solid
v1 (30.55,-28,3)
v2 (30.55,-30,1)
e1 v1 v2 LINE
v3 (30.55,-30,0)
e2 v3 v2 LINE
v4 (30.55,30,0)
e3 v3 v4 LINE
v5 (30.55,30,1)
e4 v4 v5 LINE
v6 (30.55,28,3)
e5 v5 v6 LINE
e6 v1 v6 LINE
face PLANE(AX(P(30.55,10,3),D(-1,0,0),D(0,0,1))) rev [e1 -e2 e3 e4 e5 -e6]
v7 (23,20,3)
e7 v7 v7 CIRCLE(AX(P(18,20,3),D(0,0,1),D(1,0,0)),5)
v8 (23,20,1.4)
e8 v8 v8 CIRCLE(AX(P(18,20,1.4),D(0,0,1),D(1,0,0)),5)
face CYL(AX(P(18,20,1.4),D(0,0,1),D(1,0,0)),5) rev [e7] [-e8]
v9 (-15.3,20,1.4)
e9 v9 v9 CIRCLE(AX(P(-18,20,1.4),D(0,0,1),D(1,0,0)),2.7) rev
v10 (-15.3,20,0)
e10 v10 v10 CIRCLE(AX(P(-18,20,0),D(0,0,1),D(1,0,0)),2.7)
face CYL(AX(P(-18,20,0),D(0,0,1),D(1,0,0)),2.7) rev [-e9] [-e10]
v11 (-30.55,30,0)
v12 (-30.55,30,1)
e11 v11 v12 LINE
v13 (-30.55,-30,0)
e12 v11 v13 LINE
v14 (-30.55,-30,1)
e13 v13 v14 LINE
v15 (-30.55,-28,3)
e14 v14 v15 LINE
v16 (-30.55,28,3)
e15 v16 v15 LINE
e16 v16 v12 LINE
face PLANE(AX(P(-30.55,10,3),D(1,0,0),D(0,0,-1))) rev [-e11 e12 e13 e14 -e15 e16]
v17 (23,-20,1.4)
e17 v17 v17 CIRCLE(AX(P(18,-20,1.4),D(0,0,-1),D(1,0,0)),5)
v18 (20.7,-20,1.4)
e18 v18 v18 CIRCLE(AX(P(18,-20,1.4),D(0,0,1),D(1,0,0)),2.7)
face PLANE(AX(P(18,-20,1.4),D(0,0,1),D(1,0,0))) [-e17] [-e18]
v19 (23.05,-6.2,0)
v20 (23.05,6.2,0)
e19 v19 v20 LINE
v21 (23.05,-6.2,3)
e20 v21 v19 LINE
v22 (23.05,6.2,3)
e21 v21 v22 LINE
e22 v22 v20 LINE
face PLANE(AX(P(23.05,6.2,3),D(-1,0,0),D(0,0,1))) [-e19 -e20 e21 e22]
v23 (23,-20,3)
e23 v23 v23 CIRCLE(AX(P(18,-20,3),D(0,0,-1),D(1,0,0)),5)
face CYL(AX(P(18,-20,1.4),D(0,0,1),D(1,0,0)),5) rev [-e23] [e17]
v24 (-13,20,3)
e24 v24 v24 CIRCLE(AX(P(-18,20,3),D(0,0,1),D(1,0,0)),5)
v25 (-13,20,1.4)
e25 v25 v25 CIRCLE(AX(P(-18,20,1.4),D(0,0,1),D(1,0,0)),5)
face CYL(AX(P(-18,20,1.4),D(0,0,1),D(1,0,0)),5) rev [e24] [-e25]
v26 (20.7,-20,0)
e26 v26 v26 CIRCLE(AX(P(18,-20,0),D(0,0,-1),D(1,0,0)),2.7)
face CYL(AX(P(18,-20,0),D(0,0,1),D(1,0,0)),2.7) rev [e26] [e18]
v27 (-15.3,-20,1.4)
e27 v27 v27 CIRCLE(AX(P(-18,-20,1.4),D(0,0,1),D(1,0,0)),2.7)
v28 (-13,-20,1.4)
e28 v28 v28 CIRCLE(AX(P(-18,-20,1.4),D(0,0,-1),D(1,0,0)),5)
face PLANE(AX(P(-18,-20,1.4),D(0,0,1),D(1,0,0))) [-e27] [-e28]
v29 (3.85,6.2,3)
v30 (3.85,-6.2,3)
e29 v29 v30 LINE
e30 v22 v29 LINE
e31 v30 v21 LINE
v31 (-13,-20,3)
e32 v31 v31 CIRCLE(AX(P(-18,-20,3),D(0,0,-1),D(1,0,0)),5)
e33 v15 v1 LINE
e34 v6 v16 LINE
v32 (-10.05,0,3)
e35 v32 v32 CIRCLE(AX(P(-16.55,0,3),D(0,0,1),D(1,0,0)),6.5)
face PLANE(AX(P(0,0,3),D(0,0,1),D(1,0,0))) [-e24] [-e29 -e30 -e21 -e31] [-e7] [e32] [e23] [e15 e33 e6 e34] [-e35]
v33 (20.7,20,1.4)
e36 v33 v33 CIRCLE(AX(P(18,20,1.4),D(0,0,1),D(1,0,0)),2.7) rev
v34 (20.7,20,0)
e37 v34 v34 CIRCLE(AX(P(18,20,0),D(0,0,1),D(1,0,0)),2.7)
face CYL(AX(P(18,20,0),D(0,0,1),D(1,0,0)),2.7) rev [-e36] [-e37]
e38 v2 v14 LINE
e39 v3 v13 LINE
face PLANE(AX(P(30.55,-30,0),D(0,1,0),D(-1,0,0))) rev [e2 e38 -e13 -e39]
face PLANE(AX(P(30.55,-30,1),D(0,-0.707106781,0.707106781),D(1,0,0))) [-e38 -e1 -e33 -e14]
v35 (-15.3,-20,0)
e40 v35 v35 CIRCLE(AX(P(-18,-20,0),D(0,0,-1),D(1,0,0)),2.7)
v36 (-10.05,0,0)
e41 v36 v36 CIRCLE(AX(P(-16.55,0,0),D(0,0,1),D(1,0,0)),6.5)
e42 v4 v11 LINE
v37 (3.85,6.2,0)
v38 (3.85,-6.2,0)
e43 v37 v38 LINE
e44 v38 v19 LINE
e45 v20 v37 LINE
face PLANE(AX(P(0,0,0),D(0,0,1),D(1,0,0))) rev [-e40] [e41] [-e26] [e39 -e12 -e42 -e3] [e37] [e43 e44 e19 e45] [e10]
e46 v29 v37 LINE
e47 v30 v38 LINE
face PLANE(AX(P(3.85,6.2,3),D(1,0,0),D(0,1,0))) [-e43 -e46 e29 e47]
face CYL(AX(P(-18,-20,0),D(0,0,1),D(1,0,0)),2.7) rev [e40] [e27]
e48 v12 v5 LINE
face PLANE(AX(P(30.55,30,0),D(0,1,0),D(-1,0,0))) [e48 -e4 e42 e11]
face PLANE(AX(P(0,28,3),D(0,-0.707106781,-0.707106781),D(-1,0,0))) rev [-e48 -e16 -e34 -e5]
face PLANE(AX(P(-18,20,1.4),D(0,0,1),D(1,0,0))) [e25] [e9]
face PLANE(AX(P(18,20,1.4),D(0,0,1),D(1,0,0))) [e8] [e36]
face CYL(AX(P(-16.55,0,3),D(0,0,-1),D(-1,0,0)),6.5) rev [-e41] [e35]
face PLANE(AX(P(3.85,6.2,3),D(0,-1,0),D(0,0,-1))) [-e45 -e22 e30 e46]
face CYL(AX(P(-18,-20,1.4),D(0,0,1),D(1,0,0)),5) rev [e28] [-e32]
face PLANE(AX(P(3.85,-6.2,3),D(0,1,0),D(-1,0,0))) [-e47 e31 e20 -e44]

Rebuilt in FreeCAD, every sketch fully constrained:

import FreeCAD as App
import Part
import Sketcher
Q = App.Units.Quantity


def edges_at(feature, points):
    """Names of the edges that pass closest to the given points."""
    edges = feature.Shape.Edges
    near = lambda p: min(range(len(edges)), key=lambda i: edges[i].distToShape(Part.Vertex(*p))[0])
    return sorted({f"Edge{near(p) + 1}" for p in points})

doc = App.newDocument("Part")
body = doc.addObject("PartDesign::Body", "Body")

# Sketch on XY plane
sketch1 = body.newObject("Sketcher::SketchObject", "Sketch")
sketch1.AttachmentSupport = (doc.getObject("XY_Plane"), [""])
sketch1.MapMode = "FlatFace"
sketch1.addGeometry([
    Part.LineSegment(App.Vector(-31, 10, 0), App.Vector(-31, -10, 0)),  # 0
    Part.LineSegment(App.Vector(-31, -10, 0), App.Vector(31, -10, 0)),  # 1
    Part.LineSegment(App.Vector(31, -10, 0), App.Vector(31, 10, 0)),  # 2
    Part.LineSegment(App.Vector(31, 10, 0), App.Vector(-31, 10, 0)),  # 3
    Part.Circle(App.Vector(-17, 0, 0), App.Vector(0, 0, 1), 6),  # 4
    Part.LineSegment(App.Vector(23, -6, 0), App.Vector(4, -6, 0)),  # 5
    Part.LineSegment(App.Vector(4, -6, 0), App.Vector(4, 6, 0)),  # 6
    Part.LineSegment(App.Vector(4, 6, 0), App.Vector(23, 6, 0)),  # 7
    Part.LineSegment(App.Vector(23, 6, 0), App.Vector(23, -6, 0)),  # 8
], False)
sketch1.addConstraint([
    Sketcher.Constraint("Coincident", 0, 2, 1, 1),
    Sketcher.Constraint("Coincident", 1, 2, 2, 1),
    Sketcher.Constraint("Coincident", 2, 2, 3, 1),
    Sketcher.Constraint("Coincident", 3, 2, 0, 1),
    Sketcher.Constraint("Coincident", 5, 2, 6, 1),
    Sketcher.Constraint("Coincident", 6, 2, 7, 1),
    Sketcher.Constraint("Coincident", 7, 2, 8, 1),
    Sketcher.Constraint("Coincident", 8, 2, 5, 1),
    Sketcher.Constraint("Vertical", 0),
    Sketcher.Constraint("Horizontal", 1),
    Sketcher.Constraint("Vertical", 2),
    Sketcher.Constraint("Horizontal", 3),
    Sketcher.Constraint("Horizontal", 5),
    Sketcher.Constraint("Vertical", 6),
    Sketcher.Constraint("Horizontal", 7),
    Sketcher.Constraint("Vertical", 8),
    Sketcher.Constraint("Symmetric", 0, 2, 2, 2, -1, 1),
    Sketcher.Constraint("PointOnObject", 4, 3, -1),
    Sketcher.Constraint("Diameter", 4, Q("13 mm")),
    Sketcher.Constraint("DistanceY", 0, 2, 0, 1, Q("20 mm")),
    Sketcher.Constraint("DistanceX", 1, 1, 1, 2, Q("61.1 mm")),
    Sketcher.Constraint("DistanceX", 5, 2, 5, 1, Q("19.2 mm")),
    Sketcher.Constraint("DistanceY", 6, 1, 6, 2, Q("12.4 mm")),
    Sketcher.Constraint("DistanceX", 0, 2, 4, 3, Q("14 mm")),
    Sketcher.Constraint("DistanceY", 5, 2, -1, 1, Q("6.2 mm")),
    Sketcher.Constraint("DistanceX", 4, 3, 5, 2, Q("20.4 mm")),
])
pad1 = body.newObject("PartDesign::Pad", "Pad")
pad1.Profile = sketch1
pad1.Length = 3

# Sketch on XY plane
sketch2 = body.newObject("Sketcher::SketchObject", "Sketch001")
sketch2.AttachmentSupport = (doc.getObject("XY_Plane"), [""])
sketch2.MapMode = "FlatFace"
sketch2.AttachmentOffset = App.Placement(App.Vector(0, 0, 3), App.Rotation())
sketch2.addGeometry([
    Part.LineSegment(App.Vector(-31, 30, 0), App.Vector(-31, 10, 0)),
    Part.LineSegment(App.Vector(-31, 10, 0), App.Vector(31, 10, 0)),
    Part.LineSegment(App.Vector(31, 10, 0), App.Vector(31, 30, 0)),
    Part.LineSegment(App.Vector(31, 30, 0), App.Vector(-31, 30, 0)),
], False)
sketch2.addConstraint([
    Sketcher.Constraint("Coincident", 0, 2, 1, 1),
    Sketcher.Constraint("Coincident", 1, 2, 2, 1),
    Sketcher.Constraint("Coincident", 2, 2, 3, 1),
    Sketcher.Constraint("Coincident", 3, 2, 0, 1),
    Sketcher.Constraint("Vertical", 0),
    Sketcher.Constraint("Horizontal", 1),
    Sketcher.Constraint("Vertical", 2),
    Sketcher.Constraint("Horizontal", 3),
    Sketcher.Constraint("DistanceY", 0, 2, 0, 1, Q("20 mm")),
    Sketcher.Constraint("DistanceX", 1, 1, 1, 2, Q("61.1 mm")),
    Sketcher.Constraint("DistanceY", -1, 1, 0, 2, Q("10 mm")),
    Sketcher.Constraint("DistanceX", 0, 2, -1, 1, Q("30.55 mm")),
])
pad2 = body.newObject("PartDesign::Pad", "Pad001")
pad2.Profile = sketch2
pad2.Length = 3
pad2.Reversed = True

# Sketch on XY plane
sketch3 = body.newObject("Sketcher::SketchObject", "Sketch002")
sketch3.AttachmentSupport = (doc.getObject("XY_Plane"), [""])
sketch3.MapMode = "FlatFace"
sketch3.AttachmentOffset = App.Placement(App.Vector(0, 0, 3), App.Rotation())
sketch3.addGeometry([
    Part.Circle(App.Vector(-18, 20, 0), App.Vector(0, 0, 1), 2.7),
    Part.Circle(App.Vector(18, 20, 0), App.Vector(0, 0, 1), 2.7),
], False)
sketch3.addConstraint([
    Sketcher.Constraint("Equal", 0, 1),
    Sketcher.Constraint("Symmetric", 0, 3, 1, 3, -2),
    Sketcher.Constraint("Diameter", 0, Q("5.4 mm")),
    Sketcher.Constraint("DistanceX", 0, 3, -1, 1, Q("18 mm")),
    Sketcher.Constraint("DistanceY", -1, 1, 0, 3, Q("20 mm")),
])
pocket1 = body.newObject("PartDesign::Pocket", "Pocket")
pocket1.Profile = sketch3
pocket1.Length = 3

# Sketch on XY plane
sketch4 = body.newObject("Sketcher::SketchObject", "Sketch003")
sketch4.AttachmentSupport = (doc.getObject("XY_Plane"), [""])
sketch4.MapMode = "FlatFace"
sketch4.AttachmentOffset = App.Placement(App.Vector(0, 0, 3), App.Rotation())
sketch4.addGeometry([
    Part.Circle(App.Vector(-18, 20, 0), App.Vector(0, 0, 1), 5),
    Part.Circle(App.Vector(18, 20, 0), App.Vector(0, 0, 1), 5),
], False)
sketch4.addConstraint([
    Sketcher.Constraint("Equal", 0, 1),
    Sketcher.Constraint("Symmetric", 0, 3, 1, 3, -2),
    Sketcher.Constraint("Diameter", 0, Q("10 mm")),
    Sketcher.Constraint("DistanceX", 0, 3, -1, 1, Q("18 mm")),
    Sketcher.Constraint("DistanceY", -1, 1, 0, 3, Q("20 mm")),
])
pocket2 = body.newObject("PartDesign::Pocket", "Pocket001")
pocket2.Profile = sketch4
pocket2.Length = 1.6
doc.recompute()

mirrored = body.newObject("PartDesign::Mirrored", "Mirrored")
mirrored.Originals = [pad2, pocket1, pocket2]
mirrored.MirrorPlane = (doc.getObject("XZ_Plane"), [""])
body.Tip = mirrored
doc.recompute()

chamfer = body.newObject("PartDesign::Chamfer", "Chamfer")
chamfer.Base = (mirrored, edges_at(mirrored, [(0, 30, 3), (0, -30, 3)]))
chamfer.Size = 2

doc.recompute()
